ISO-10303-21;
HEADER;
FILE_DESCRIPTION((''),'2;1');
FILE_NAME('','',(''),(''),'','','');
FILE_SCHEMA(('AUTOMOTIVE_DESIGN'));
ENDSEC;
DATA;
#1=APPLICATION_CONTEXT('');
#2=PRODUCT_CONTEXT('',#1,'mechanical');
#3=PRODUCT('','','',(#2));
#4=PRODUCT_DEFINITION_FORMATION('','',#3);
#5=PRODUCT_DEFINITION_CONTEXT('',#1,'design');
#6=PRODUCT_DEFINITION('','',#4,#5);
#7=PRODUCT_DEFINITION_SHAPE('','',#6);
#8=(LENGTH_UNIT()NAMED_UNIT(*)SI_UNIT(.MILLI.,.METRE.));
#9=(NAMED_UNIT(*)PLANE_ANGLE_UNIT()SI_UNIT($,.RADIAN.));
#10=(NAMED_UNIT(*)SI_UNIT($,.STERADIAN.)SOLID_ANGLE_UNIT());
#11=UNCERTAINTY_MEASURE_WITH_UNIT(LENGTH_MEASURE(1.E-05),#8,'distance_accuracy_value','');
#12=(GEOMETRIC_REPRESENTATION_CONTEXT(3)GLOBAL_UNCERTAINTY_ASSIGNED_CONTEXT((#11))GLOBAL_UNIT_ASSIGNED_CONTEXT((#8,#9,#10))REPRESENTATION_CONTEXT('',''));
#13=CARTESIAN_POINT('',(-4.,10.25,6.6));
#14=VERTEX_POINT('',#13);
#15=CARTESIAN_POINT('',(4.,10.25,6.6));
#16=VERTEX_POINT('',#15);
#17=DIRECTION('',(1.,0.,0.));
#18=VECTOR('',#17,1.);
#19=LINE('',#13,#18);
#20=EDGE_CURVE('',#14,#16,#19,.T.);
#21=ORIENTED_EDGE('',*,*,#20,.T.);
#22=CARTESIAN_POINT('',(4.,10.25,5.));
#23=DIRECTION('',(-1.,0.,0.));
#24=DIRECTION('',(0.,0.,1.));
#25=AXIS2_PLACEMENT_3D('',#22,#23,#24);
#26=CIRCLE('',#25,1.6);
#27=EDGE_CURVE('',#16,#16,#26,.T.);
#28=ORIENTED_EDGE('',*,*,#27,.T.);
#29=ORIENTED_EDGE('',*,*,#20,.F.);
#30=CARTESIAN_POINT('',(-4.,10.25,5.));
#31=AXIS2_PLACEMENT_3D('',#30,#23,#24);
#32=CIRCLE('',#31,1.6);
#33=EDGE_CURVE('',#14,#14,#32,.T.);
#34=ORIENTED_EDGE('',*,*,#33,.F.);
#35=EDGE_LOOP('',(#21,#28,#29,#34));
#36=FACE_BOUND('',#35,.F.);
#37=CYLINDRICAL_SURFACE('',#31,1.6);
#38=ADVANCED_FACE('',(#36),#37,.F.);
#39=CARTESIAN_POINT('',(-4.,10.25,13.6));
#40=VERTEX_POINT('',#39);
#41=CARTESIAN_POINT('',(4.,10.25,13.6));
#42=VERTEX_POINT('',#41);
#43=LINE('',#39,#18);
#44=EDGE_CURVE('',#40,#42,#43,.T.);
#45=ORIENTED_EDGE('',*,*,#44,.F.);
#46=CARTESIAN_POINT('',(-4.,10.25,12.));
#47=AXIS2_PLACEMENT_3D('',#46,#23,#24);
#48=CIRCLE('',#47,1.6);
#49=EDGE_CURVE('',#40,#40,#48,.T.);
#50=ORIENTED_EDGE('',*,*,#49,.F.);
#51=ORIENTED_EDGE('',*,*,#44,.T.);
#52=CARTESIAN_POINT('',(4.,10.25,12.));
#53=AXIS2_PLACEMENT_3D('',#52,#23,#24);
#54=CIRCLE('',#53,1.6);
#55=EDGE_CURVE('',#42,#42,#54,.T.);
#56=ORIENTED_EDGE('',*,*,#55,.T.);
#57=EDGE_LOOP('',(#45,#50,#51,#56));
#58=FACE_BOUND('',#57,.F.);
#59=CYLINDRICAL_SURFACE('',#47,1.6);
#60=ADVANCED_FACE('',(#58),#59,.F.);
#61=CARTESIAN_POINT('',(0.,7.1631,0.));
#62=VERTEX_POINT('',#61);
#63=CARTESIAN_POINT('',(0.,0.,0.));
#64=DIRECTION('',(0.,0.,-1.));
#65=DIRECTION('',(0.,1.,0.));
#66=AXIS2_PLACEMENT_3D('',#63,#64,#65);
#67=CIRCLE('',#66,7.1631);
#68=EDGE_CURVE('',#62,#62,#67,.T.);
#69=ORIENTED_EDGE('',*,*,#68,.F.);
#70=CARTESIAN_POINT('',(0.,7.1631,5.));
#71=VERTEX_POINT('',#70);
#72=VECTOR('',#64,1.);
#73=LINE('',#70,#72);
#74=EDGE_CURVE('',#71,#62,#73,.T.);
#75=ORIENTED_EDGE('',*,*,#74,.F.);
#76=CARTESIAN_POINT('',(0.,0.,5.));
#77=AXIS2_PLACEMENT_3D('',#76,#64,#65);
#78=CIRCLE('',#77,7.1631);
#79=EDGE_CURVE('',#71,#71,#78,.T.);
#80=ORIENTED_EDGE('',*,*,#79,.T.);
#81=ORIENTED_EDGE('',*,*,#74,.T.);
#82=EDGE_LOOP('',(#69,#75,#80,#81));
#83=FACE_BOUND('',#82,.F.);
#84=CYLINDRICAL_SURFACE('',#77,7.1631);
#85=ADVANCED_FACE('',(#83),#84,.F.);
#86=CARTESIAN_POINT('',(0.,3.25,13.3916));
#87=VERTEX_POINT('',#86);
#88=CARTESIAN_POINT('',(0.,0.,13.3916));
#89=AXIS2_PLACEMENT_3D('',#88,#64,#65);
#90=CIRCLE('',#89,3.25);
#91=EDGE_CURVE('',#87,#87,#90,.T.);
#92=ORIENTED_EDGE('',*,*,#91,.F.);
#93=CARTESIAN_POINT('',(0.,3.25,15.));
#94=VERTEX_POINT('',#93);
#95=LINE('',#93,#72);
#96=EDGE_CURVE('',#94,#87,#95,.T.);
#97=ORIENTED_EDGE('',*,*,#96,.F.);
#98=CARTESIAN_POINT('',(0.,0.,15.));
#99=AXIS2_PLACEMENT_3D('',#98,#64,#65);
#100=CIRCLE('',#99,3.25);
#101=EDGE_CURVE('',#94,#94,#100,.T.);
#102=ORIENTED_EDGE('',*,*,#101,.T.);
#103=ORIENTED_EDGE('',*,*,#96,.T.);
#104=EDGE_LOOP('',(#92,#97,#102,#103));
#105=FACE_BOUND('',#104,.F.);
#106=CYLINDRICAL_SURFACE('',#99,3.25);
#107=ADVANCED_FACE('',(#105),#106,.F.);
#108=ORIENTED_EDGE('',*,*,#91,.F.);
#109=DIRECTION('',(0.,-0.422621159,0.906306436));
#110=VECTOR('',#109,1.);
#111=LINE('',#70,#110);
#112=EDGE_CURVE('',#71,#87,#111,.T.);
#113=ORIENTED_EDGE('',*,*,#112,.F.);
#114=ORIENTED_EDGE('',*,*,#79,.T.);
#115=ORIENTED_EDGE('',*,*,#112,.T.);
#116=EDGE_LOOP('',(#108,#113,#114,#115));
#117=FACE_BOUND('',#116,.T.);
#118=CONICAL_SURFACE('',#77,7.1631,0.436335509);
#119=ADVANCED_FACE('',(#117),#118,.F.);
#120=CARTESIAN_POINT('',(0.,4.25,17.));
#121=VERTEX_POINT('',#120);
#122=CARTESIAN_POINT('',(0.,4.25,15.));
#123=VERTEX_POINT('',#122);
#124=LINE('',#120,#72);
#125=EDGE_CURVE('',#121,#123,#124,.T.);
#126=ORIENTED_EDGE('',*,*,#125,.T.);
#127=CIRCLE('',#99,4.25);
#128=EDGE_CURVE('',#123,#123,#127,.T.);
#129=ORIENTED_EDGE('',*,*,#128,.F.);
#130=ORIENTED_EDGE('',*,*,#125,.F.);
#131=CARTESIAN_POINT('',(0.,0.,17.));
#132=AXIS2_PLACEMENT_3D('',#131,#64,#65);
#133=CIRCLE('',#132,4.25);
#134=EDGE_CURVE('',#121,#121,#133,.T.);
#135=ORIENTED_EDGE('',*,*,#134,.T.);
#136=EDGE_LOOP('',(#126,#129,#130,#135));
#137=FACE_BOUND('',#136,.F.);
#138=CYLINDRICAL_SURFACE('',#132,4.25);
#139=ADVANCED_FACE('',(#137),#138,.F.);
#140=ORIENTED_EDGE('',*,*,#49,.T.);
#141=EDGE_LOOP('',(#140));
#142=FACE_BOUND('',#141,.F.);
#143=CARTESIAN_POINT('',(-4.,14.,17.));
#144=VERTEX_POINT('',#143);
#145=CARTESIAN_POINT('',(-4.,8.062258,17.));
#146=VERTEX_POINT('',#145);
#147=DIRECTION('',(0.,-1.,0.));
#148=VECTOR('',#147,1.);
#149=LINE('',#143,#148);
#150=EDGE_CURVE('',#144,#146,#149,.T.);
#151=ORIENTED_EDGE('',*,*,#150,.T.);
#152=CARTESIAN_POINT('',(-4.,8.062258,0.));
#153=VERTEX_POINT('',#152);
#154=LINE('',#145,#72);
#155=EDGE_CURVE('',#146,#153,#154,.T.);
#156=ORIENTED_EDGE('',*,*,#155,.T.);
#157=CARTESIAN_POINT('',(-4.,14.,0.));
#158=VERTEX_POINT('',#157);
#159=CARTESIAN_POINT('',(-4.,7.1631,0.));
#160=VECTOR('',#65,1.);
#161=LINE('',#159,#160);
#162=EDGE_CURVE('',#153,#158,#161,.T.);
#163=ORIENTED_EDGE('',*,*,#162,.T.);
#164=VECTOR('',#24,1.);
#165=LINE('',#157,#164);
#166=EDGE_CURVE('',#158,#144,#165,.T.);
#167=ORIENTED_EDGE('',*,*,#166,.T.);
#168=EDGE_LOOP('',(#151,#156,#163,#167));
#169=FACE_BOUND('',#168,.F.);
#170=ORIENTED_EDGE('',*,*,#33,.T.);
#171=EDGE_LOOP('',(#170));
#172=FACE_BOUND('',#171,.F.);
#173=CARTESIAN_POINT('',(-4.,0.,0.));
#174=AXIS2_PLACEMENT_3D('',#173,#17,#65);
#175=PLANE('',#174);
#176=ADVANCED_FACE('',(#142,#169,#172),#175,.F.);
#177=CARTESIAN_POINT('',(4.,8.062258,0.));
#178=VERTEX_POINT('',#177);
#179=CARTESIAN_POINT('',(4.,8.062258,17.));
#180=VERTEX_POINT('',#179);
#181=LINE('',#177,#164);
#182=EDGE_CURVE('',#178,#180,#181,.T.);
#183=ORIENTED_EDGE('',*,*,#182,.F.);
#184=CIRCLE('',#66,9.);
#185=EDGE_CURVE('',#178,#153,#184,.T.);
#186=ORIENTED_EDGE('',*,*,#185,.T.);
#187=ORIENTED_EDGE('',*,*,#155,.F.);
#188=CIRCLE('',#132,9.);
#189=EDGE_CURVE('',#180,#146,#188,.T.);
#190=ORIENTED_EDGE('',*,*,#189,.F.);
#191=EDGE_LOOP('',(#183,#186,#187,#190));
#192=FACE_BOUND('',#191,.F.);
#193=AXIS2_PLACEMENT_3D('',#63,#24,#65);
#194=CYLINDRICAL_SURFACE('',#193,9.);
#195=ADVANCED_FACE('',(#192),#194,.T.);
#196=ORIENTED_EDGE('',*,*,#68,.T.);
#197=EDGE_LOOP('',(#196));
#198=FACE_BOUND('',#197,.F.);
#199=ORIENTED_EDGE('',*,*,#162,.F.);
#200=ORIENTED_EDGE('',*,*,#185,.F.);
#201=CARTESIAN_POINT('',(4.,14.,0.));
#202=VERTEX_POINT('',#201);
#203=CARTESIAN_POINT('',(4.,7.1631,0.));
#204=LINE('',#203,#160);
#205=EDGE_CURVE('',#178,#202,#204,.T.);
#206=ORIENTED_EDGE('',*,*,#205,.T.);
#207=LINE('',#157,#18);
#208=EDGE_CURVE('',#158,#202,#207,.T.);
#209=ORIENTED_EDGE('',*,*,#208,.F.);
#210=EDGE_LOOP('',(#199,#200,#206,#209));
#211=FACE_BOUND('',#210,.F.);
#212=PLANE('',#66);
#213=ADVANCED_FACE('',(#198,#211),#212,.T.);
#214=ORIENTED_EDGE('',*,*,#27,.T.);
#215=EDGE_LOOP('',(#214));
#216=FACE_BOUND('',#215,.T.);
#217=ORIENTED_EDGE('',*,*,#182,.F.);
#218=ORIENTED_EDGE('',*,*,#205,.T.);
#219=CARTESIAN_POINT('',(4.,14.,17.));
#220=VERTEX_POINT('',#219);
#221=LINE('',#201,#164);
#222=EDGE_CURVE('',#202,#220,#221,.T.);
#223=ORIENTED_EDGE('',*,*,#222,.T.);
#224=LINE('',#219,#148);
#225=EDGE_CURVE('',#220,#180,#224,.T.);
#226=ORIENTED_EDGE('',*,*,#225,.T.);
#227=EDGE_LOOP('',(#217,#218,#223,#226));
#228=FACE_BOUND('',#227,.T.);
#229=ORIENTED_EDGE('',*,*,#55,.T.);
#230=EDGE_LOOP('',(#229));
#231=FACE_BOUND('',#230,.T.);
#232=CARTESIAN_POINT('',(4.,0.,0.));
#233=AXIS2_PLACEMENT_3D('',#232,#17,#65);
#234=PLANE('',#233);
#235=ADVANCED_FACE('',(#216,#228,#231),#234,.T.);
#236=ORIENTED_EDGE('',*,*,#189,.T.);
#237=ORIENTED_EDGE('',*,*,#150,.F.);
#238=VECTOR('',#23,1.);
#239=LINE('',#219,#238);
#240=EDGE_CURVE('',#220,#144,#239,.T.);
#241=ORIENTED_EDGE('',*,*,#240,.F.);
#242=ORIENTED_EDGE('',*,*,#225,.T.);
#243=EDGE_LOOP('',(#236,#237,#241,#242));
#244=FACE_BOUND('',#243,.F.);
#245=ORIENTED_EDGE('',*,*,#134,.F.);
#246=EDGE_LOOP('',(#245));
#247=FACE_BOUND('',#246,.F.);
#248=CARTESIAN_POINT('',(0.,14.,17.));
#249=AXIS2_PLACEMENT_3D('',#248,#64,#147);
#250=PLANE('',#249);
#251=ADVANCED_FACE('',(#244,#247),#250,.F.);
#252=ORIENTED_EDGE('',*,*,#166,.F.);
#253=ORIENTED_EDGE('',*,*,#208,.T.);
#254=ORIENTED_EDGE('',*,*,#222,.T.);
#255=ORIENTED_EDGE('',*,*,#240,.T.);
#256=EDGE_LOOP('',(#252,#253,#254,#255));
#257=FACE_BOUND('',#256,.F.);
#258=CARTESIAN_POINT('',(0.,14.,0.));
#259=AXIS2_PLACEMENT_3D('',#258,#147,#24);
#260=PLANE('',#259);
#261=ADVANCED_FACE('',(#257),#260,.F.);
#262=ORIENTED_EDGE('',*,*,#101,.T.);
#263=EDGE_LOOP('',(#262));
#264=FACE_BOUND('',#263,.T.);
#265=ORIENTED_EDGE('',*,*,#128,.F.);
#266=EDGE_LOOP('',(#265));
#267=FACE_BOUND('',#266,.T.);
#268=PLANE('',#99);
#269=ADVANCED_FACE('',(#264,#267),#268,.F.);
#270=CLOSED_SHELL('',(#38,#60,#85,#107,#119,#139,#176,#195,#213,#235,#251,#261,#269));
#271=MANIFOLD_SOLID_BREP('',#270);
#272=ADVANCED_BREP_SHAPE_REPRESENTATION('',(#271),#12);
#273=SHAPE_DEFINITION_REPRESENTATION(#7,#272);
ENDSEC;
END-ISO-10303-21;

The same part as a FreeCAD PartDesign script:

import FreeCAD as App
import Part
import Sketcher
from FreeCAD import Vector
Q = App.Units.Quantity

doc = App.newDocument("Part")
body = doc.addObject("PartDesign::Body", "Body")

# Sketch on YZ plane
sketch1 = body.newObject("Sketcher::SketchObject", "Sketch")
sketch1.AttachmentSupport = (doc.getObject("YZ_Plane"), [""])
sketch1.MapMode = "FlatFace"
sketch1.addGeometry([
    Part.LineSegment(Vector(7.2, 0, 0), Vector(9, 0, 0)),  # 0
    Part.LineSegment(Vector(9, 0, 0), Vector(9, 17, 0)),  # 1
    Part.LineSegment(Vector(9, 17, 0), Vector(4.2, 17, 0)),  # 2
    Part.LineSegment(Vector(4.2, 17, 0), Vector(4.2, 15, 0)),  # 3
    Part.LineSegment(Vector(4.2, 15, 0), Vector(3.2, 15, 0)),  # 4
    Part.LineSegment(Vector(3.2, 15, 0), Vector(3.2, 13.4, 0)),  # 5
    Part.LineSegment(Vector(3.2, 13.4, 0), Vector(7.2, 5, 0)),  # 6
    Part.LineSegment(Vector(7.2, 5, 0), Vector(7.2, 0, 0)),  # 7
], False)
sketch1.addConstraint([
    Sketcher.Constraint("Coincident", 0, 2, 1, 1),
    Sketcher.Constraint("Coincident", 1, 2, 2, 1),
    Sketcher.Constraint("Coincident", 2, 2, 3, 1),
    Sketcher.Constraint("Coincident", 3, 2, 4, 1),
    Sketcher.Constraint("Coincident", 4, 2, 5, 1),
    Sketcher.Constraint("Coincident", 5, 2, 6, 1),
    Sketcher.Constraint("Coincident", 6, 2, 7, 1),
    Sketcher.Constraint("Coincident", 7, 2, 0, 1),
    Sketcher.Constraint("Horizontal", 0),
    Sketcher.Constraint("Vertical", 1),
    Sketcher.Constraint("Horizontal", 2),
    Sketcher.Constraint("Vertical", 3),
    Sketcher.Constraint("Horizontal", 4),
    Sketcher.Constraint("Vertical", 5),
    Sketcher.Constraint("Vertical", 7),
    Sketcher.Constraint("PointOnObject", 0, 2, -1),
    Sketcher.Constraint("DistanceX", 4, 2, 4, 1, Q("1 mm")),
    Sketcher.Constraint("DistanceY", 3, 2, 3, 1, Q("2 mm")),
    Sketcher.Constraint("DistanceY", 7, 2, 7, 1, Q("5 mm")),
    Sketcher.Constraint("DistanceX", -1, 1, 0, 2, Q("9 mm")),
    Sketcher.Constraint("DistanceY", -1, 1, 3, 2, Q("15 mm")),
    Sketcher.Constraint("DistanceX", -1, 1, 2, 2, Q("4.25 mm")),
    Sketcher.Constraint("Angle", 6, Q("-64.9998 deg")),
    Sketcher.Constraint("DistanceY", 5, 2, 5, 1, Q("1.6084 mm")),
])
revolution = body.newObject("PartDesign::Revolution", "Revolution")
revolution.Profile = sketch1
revolution.ReferenceAxis = (sketch1, ["V_Axis"])
revolution.Angle = 360

# Sketch on YZ plane
sketch2 = body.newObject("Sketcher::SketchObject", "Sketch001")
sketch2.AttachmentSupport = (doc.getObject("YZ_Plane"), [""])
sketch2.MapMode = "FlatFace"
sketch2.addGeometry([
    Part.LineSegment(Vector(7, 17, 0), Vector(7, 0, 0)),
    Part.LineSegment(Vector(7, 0, 0), Vector(14, 0, 0)),
    Part.LineSegment(Vector(14, 0, 0), Vector(14, 17, 0)),
    Part.LineSegment(Vector(14, 17, 0), Vector(7, 17, 0)),
], False)
sketch2.addConstraint([
    Sketcher.Constraint("Coincident", 0, 2, 1, 1),
    Sketcher.Constraint("Coincident", 1, 2, 2, 1),
    Sketcher.Constraint("Coincident", 2, 2, 3, 1),
    Sketcher.Constraint("Coincident", 3, 2, 0, 1),
    Sketcher.Constraint("Vertical", 0),
    Sketcher.Constraint("Horizontal", 1),
    Sketcher.Constraint("Vertical", 2),
    Sketcher.Constraint("Horizontal", 3),
    Sketcher.Constraint("PointOnObject", 0, 2, -1),
    Sketcher.Constraint("DistanceX", -1, 1, 1, 2, Q("14 mm")),
    Sketcher.Constraint("DistanceY", 0, 2, 0, 1, Q("17 mm")),
    Sketcher.Constraint("DistanceX", 1, 1, 1, 2, Q("6.837 mm")),
])
pad1 = body.newObject("PartDesign::Pad", "Pad")
pad1.Profile = sketch2
pad1.Length = 8
pad1.Midplane = True

# Sketch on YZ plane
sketch3 = body.newObject("Sketcher::SketchObject", "Sketch002")
sketch3.AttachmentSupport = (doc.getObject("YZ_Plane"), [""])
sketch3.MapMode = "FlatFace"
sketch3.AttachmentOffset = App.Placement(Vector(0, 0, -4), App.Rotation())
sketch3.addGeometry([
    Part.Circle(Vector(10.2, 5, 0), Vector(0, 0, 1), 1.6),
    Part.Circle(Vector(10.2, 12, 0), Vector(0, 0, 1), 1.6),
], False)
sketch3.addConstraint([
    Sketcher.Constraint("Equal", 0, 1),
    Sketcher.Constraint("Vertical", 0, 3, 1, 3),
    Sketcher.Constraint("Diameter", 0, Q("3.2 mm")),
    Sketcher.Constraint("DistanceY", 0, 3, 1, 3, Q("7 mm")),
    Sketcher.Constraint("DistanceY", -1, 1, 0, 3, Q("5 mm")),
    Sketcher.Constraint("DistanceX", -1, 1, 0, 3, Q("10.25 mm")),
])
pocket1 = body.newObject("PartDesign::Pocket", "Pocket")
pocket1.Profile = sketch3
pocket1.Length = 10
pocket1.Reversed = True

doc.recompute()
